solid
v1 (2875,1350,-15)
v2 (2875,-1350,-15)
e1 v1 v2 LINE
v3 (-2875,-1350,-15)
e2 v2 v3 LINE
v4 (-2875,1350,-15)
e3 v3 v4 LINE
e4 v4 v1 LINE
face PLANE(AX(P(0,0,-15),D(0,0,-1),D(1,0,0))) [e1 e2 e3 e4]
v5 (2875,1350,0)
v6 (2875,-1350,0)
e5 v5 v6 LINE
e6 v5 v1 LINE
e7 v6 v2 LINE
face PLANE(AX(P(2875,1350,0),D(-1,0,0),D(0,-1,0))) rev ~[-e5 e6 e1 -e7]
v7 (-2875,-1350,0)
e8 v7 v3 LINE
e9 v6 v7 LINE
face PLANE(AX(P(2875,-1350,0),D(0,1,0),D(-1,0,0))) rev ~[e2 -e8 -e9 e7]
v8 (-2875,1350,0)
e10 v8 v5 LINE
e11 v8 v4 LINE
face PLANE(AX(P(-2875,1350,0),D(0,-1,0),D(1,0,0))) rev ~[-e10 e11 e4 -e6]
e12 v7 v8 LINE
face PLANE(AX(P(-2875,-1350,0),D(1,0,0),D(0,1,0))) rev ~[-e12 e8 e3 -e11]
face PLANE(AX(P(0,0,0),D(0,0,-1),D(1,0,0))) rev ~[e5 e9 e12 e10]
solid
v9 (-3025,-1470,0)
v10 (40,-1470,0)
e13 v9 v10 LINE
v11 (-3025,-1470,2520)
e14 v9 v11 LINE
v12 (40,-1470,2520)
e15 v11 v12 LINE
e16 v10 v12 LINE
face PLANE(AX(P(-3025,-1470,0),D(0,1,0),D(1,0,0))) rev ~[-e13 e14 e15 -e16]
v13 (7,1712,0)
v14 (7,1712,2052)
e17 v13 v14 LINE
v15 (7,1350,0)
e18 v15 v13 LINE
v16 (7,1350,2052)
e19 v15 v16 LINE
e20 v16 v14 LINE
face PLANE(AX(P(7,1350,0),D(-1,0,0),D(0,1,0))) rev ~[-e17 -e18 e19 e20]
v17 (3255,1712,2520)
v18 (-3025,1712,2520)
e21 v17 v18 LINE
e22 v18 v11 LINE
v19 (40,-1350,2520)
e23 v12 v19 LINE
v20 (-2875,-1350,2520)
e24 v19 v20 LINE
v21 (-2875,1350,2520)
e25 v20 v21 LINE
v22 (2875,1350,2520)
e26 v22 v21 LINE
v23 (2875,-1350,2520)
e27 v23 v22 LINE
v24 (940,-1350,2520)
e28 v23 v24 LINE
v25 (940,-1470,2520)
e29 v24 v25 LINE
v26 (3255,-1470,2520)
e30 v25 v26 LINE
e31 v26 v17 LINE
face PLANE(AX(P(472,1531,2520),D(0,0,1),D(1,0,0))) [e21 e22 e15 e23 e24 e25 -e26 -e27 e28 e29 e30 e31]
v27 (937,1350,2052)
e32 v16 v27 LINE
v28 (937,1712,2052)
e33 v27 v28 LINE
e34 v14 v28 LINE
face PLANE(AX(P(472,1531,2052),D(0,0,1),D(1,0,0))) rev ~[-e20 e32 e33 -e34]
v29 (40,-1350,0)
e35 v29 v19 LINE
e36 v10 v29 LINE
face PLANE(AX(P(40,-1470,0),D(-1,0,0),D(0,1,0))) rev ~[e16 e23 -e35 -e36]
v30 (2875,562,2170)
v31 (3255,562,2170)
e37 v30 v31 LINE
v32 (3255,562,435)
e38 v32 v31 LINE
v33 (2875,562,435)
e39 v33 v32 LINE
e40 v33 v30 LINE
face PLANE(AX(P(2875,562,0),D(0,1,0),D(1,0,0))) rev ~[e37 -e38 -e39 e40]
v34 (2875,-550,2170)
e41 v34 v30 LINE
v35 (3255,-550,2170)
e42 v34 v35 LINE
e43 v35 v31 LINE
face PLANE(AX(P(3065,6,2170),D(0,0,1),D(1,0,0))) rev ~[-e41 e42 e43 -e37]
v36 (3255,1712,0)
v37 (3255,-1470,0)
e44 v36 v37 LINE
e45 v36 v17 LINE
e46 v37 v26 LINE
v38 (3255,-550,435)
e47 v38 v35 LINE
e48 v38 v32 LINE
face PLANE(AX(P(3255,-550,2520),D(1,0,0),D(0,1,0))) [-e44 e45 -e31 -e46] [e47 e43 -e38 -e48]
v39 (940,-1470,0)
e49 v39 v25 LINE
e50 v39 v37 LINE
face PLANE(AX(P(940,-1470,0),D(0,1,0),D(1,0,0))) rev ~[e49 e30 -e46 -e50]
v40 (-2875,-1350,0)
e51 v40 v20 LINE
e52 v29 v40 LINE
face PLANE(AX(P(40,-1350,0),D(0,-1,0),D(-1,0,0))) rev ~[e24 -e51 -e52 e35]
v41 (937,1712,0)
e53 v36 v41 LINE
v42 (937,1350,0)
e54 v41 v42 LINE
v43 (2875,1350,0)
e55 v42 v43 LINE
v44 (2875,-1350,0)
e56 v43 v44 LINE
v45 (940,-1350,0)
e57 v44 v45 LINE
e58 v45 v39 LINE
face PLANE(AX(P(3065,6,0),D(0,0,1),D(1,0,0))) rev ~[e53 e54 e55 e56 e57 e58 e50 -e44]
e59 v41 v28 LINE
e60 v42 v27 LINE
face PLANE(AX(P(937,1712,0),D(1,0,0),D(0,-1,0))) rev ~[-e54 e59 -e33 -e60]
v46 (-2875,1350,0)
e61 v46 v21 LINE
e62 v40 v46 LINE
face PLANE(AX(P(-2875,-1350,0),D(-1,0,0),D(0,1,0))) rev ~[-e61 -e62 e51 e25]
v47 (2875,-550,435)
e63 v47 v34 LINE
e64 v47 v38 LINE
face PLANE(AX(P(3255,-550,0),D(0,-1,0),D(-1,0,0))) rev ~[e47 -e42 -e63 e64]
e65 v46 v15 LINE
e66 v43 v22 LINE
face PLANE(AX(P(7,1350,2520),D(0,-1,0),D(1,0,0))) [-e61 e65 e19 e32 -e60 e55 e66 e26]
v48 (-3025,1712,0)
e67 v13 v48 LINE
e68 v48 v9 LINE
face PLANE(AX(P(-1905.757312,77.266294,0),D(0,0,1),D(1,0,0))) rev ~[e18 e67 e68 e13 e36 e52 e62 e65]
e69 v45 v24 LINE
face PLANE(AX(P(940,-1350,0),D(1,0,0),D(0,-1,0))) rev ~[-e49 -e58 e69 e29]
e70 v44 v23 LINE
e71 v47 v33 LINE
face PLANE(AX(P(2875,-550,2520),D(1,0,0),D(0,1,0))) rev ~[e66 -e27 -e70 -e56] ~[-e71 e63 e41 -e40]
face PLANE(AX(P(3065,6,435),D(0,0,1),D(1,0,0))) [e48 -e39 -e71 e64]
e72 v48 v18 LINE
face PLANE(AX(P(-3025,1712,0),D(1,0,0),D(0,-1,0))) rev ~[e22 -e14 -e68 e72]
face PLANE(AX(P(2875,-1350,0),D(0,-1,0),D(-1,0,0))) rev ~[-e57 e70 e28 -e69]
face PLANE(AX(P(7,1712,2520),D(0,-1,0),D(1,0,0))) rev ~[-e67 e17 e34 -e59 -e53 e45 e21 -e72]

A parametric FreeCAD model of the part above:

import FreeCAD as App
import Part
import Sketcher
from FreeCAD import Vector
Q = App.Units.Quantity


def add_polygon(sketch, points):
    """Adds a closed chain of lines whose ends are joined by coincident constraints."""
    first, n = sketch.GeometryCount, len(points)
    for a, b in zip(points, points[1:] + points[:1]):
        sketch.addGeometry(Part.LineSegment(App.Vector(*a, 0), App.Vector(*b, 0)), False)
    for i in range(n):
        sketch.addConstraint(Sketcher.Constraint("Coincident", first + i, 2, first + (i + 1) % n, 1))

doc = App.newDocument("Part")
params = doc.addObject("Spreadsheet::Sheet", "Params")
for row, (alias, value) in enumerate([
    ("sketch1_width", "2915 mm"),
    ("sketch1_width2", "2882 mm"),
    ("sketch1_width3", "3032 mm"),
    ("sketch1_width4", "380 mm"),
    ("sketch1_width5", "2318 mm"),
    ("pad1_length", "2520 mm"),
    ("sketch2_width", "380 mm"),
    ("sketch2_height", "1112 mm"),
    ("pad2_length", "435 mm"),
    ("sketch3_width", "380 mm"),
    ("sketch3_height", "1112 mm"),
    ("pad3_length", "350 mm"),
    ("sketch4_width", "930 mm"),
    ("sketch4_height", "362 mm"),
    ("pad4_length", "468 mm"),
    ("sketch5_width", "5750 mm"),
    ("sketch5_height", "2700 mm"),
    ("pad5_length", "15 mm"),
], start=1):
    params.set(f"A{row}", alias)
    params.set(f"B{row}", "=" + value)
    params.setAlias(f"B{row}", alias)

body = doc.addObject("PartDesign::Body", "Body")
body.AllowCompound = True

sketch1 = body.newObject("Sketcher::SketchObject", "Sketch")
sketch1.AttachmentSupport = (doc.getObject("XY_Plane"), [""])
sketch1.MapMode = "FlatFace"
add_polygon(sketch1, [(40, -1470), (40, -1350), (-2875, -1350), (-2875, 1350), (7, 1350), (7, 1712), (-3025, 1712), (-3025, -1470)])
add_polygon(sketch1, [(2875, 1350), (2875, 562), (3255, 562), (3255, 1712), (937, 1712), (937, 1350)])
add_polygon(sketch1, [(2875, -550), (2875, -1350), (940, -1350), (940, -1470), (3255, -1470), (3255, -550)])
sketch1.addConstraint([
    Sketcher.Constraint("Vertical", 0),
    Sketcher.Constraint("Horizontal", 1),
    Sketcher.Constraint("Vertical", 2),
    Sketcher.Constraint("Horizontal", 3),
    Sketcher.Constraint("Vertical", 4),
    Sketcher.Constraint("Horizontal", 5),
    Sketcher.Constraint("Vertical", 6),
    Sketcher.Constraint("Horizontal", 7),
    Sketcher.Constraint("Vertical", 8),
    Sketcher.Constraint("Horizontal", 9),
    Sketcher.Constraint("Vertical", 10),
    Sketcher.Constraint("Horizontal", 11),
    Sketcher.Constraint("Vertical", 12),
    Sketcher.Constraint("Horizontal", 13),
    Sketcher.Constraint("Vertical", 14),
    Sketcher.Constraint("Horizontal", 15),
    Sketcher.Constraint("Vertical", 16),
    Sketcher.Constraint("Horizontal", 17),
    Sketcher.Constraint("Vertical", 18),
    Sketcher.Constraint("Horizontal", 19),
    Sketcher.Constraint("Symmetric", 1, 2, 13, 2, -1, 1),
    Sketcher.Constraint("Symmetric", 2, 2, 14, 2, -1, 1),
    Sketcher.Constraint("Horizontal", 5, 2, 10, 2),
    Sketcher.Constraint("Horizontal", 3, 2, 12, 2),
    Sketcher.Constraint("Horizontal", 7, 2, 16, 2),
    Sketcher.Constraint("Vertical", 10, 2, 17, 2),
    Sketcher.Constraint("DistanceX", 1, 2, 1, 1, Q("2915 mm")),
    Sketcher.Constraint("DistanceX", 3, 1, 3, 2, Q("2882 mm")),
    Sketcher.Constraint("DistanceX", 5, 2, 5, 1, Q("3032 mm")),
    Sketcher.Constraint("DistanceX", 9, 1, 9, 2, Q("380 mm")),
    Sketcher.Constraint("DistanceX", 11, 2, 11, 1, Q("2318 mm")),
    Sketcher.Constraint("DistanceX", 15, 2, 15, 1, Q("1935 mm")),
    Sketcher.Constraint("DistanceY", 0, 1, 0, 2, Q("120 mm")),
    Sketcher.Constraint("DistanceY", 2, 1, 2, 2, Q("2700 mm")),
    Sketcher.Constraint("DistanceY", 4, 1, 4, 2, Q("362 mm")),
    Sketcher.Constraint("DistanceY", 8, 2, 8, 1, Q("788 mm")),
    Sketcher.Constraint("DistanceY", 14, 2, 14, 1, Q("800 mm")),
    Sketcher.Constraint("DistanceX", -1, 1, 0, 2, Q("40 mm")),
])
sketch1.setExpression("Constraints[46]", "Params.sketch1_width")
sketch1.setExpression("Constraints[47]", "Params.sketch1_width2")
sketch1.setExpression("Constraints[48]", "Params.sketch1_width3")
sketch1.setExpression("Constraints[49]", "Params.sketch1_width4")
sketch1.setExpression("Constraints[50]", "Params.sketch1_width5")
pad1 = body.newObject("PartDesign::Pad", "Pad")
pad1.Profile = sketch1
pad1.setExpression("Length", "Params.pad1_length")

sketch2 = body.newObject("Sketcher::SketchObject", "Sketch001")
sketch2.AttachmentSupport = (doc.getObject("XY_Plane"), [""])
sketch2.MapMode = "FlatFace"
add_polygon(sketch2, [(2875, 562), (2875, -550), (3255, -550), (3255, 562)])
sketch2.addConstraint([
    Sketcher.Constraint("Vertical", 0),
    Sketcher.Constraint("Horizontal", 1),
    Sketcher.Constraint("Vertical", 2),
    Sketcher.Constraint("Horizontal", 3),
    Sketcher.Constraint("DistanceX", 1, 1, 1, 2, Q("380 mm")),
    Sketcher.Constraint("DistanceY", 0, 2, 0, 1, Q("1112 mm")),
    Sketcher.Constraint("DistanceX", -1, 1, 0, 2, Q("2875 mm")),
    Sketcher.Constraint("DistanceY", 0, 2, -1, 1, Q("550 mm")),
])
sketch2.setExpression("Constraints[8]", "Params.sketch2_width")
sketch2.setExpression("Constraints[9]", "Params.sketch2_height")
pad2 = body.newObject("PartDesign::Pad", "Pad001")
pad2.Profile = sketch2
pad2.setExpression("Length", "Params.pad2_length")

sketch3 = body.newObject("Sketcher::SketchObject", "Sketch002")
sketch3.AttachmentSupport = (doc.getObject("XY_Plane"), [""])
sketch3.MapMode = "FlatFace"
sketch3.AttachmentOffset = App.Placement(Vector(0, 0, 2520), App.Rotation())
add_polygon(sketch3, [(2875, 562), (2875, -550), (3255, -550), (3255, 562)])
sketch3.addConstraint([
    Sketcher.Constraint("Vertical", 0),
    Sketcher.Constraint("Horizontal", 1),
    Sketcher.Constraint("Vertical", 2),
    Sketcher.Constraint("Horizontal", 3),
    Sketcher.Constraint("DistanceX", 1, 1, 1, 2, Q("380 mm")),
    Sketcher.Constraint("DistanceY", 0, 2, 0, 1, Q("1112 mm")),
    Sketcher.Constraint("DistanceX", -1, 1, 0, 2, Q("2875 mm")),
    Sketcher.Constraint("DistanceY", 0, 2, -1, 1, Q("550 mm")),
])
sketch3.setExpression("Constraints[8]", "Params.sketch3_width")
sketch3.setExpression("Constraints[9]", "Params.sketch3_height")
pad3 = body.newObject("PartDesign::Pad", "Pad002")
pad3.Profile = sketch3
pad3.setExpression("Length", "Params.pad3_length")
pad3.Reversed = True

sketch4 = body.newObject("Sketcher::SketchObject", "Sketch003")
sketch4.AttachmentSupport = (doc.getObject("XY_Plane"), [""])
sketch4.MapMode = "FlatFace"
sketch4.AttachmentOffset = App.Placement(Vector(0, 0, 2520), App.Rotation())
add_polygon(sketch4, [(7, 1712), (7, 1350), (937, 1350), (937, 1712)])
sketch4.addConstraint([
    Sketcher.Constraint("Vertical", 0),
    Sketcher.Constraint("Horizontal", 1),
    Sketcher.Constraint("Vertical", 2),
    Sketcher.Constraint("Horizontal", 3),
    Sketcher.Constraint("DistanceX", 1, 1, 1, 2, Q("930 mm")),
    Sketcher.Constraint("DistanceY", 0, 2, 0, 1, Q("362 mm")),
    Sketcher.Constraint("DistanceX", -1, 1, 0, 2, Q("7 mm")),
    Sketcher.Constraint("DistanceY", -1, 1, 0, 2, Q("1350 mm")),
])
sketch4.setExpression("Constraints[8]", "Params.sketch4_width")
sketch4.setExpression("Constraints[9]", "Params.sketch4_height")
pad4 = body.newObject("PartDesign::Pad", "Pad003")
pad4.Profile = sketch4
pad4.setExpression("Length", "Params.pad4_length")
pad4.Reversed = True
body2 = doc.addObject("PartDesign::Body", "Body001")

sketch5 = body2.newObject("Sketcher::SketchObject", "Sketch004")
sketch5.AttachmentSupport = (doc.getObject("XY_Plane001"), [""])
sketch5.MapMode = "FlatFace"
add_polygon(sketch5, [(-2875, -1350), (-2875, 1350), (2875, 1350), (2875, -1350)])
sketch5.addConstraint([
    Sketcher.Constraint("Vertical", 0),
    Sketcher.Constraint("Horizontal", 1),
    Sketcher.Constraint("Vertical", 2),
    Sketcher.Constraint("Horizontal", 3),
    Sketcher.Constraint("Symmetric", 0, 2, 2, 2, -1, 1),
    Sketcher.Constraint("DistanceX", 1, 1, 1, 2, Q("5750 mm")),
    Sketcher.Constraint("DistanceY", 0, 1, 0, 2, Q("2700 mm")),
])
sketch5.setExpression("Constraints[9]", "Params.sketch5_width")
sketch5.setExpression("Constraints[10]", "Params.sketch5_height")
pad5 = body2.newObject("PartDesign::Pad", "Pad004")
pad5.Profile = sketch5
pad5.setExpression("Length", "Params.pad5_length")
pad5.Reversed = True

doc.recompute()
